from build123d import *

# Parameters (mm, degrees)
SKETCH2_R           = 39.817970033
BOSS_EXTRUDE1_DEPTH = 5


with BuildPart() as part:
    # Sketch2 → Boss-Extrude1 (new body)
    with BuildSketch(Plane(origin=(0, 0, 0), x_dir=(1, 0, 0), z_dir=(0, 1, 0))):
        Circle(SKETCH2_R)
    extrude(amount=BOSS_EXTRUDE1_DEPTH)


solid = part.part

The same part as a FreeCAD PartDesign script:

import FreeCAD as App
import Part
import Sketcher
from FreeCAD import Vector

doc = App.newDocument("Part")
body = doc.addObject("PartDesign::Body", "Body")

# Sketch on XZ plane
sketch1 = doc.addObject("Sketcher::SketchObject", "Sketch")
body.addObject(sketch1)
sketch1.AttachmentSupport = (doc.XZ_Plane, [""])
sketch1.MapMode = "FlatFace"
sketch1.addGeometry(Part.Circle(Vector(0, 0, 0), Vector(0, 0, 1), 40), False)
sketch1.addConstraint([
    Sketcher.Constraint("Coincident", 0, 3, -1, 1),
    Sketcher.Constraint("Diameter", 0, 79.63594),
])
pad1 = doc.addObject("PartDesign::Pad", "Pad")
body.addObject(pad1)
pad1.Profile = sketch1
pad1.Length = 5
pad1.Reversed = True

doc.recompute()
